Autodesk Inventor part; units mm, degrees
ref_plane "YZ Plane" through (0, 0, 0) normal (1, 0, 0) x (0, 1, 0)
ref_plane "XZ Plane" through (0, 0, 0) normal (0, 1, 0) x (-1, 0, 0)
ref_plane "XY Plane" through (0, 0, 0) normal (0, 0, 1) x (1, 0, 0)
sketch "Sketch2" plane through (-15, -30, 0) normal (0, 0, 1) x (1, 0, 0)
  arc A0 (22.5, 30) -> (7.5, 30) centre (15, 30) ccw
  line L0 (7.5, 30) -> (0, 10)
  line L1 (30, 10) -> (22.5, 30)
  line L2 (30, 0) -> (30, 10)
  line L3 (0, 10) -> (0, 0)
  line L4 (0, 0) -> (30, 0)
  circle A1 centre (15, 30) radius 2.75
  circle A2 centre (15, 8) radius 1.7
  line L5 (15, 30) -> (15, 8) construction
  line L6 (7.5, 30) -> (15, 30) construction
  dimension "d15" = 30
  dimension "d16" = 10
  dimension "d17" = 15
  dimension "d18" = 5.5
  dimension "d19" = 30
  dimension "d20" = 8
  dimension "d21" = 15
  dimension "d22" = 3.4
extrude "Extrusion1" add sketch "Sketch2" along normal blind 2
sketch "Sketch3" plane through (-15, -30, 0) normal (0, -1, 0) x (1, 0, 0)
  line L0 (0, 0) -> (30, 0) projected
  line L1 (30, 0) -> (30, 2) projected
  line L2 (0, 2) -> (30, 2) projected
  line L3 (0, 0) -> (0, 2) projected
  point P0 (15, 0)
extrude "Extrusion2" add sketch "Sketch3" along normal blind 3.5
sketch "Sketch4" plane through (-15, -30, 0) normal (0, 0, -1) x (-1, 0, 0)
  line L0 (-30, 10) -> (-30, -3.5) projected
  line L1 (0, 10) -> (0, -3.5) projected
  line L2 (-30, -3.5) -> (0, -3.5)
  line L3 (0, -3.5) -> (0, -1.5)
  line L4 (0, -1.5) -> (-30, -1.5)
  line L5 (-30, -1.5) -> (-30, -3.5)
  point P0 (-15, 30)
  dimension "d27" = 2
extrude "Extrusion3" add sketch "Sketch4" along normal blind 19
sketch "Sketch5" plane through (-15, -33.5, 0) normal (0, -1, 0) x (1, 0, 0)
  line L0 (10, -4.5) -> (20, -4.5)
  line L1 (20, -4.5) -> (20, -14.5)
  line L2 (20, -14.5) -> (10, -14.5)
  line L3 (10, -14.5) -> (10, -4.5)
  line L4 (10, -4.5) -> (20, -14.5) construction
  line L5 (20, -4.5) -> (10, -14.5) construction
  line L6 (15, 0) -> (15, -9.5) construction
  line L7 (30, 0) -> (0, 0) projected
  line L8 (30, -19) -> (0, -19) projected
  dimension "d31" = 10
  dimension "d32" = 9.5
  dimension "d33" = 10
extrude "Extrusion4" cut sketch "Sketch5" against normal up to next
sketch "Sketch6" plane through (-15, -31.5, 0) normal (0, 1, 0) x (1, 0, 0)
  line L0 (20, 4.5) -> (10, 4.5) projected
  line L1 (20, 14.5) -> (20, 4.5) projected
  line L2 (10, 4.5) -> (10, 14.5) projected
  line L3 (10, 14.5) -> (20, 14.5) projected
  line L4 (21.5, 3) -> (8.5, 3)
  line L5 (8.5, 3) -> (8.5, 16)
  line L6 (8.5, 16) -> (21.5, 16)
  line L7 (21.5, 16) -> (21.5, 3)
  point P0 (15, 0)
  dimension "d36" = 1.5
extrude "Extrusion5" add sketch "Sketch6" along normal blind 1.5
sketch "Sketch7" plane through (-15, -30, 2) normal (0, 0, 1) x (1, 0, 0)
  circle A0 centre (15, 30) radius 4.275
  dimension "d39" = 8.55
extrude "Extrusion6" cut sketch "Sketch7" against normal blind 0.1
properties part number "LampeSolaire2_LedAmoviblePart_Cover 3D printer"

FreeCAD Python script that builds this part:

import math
import FreeCAD as App
import Part
import Sketcher

doc = App.newDocument("Part")
body = doc.addObject("PartDesign::Body", "Body")

# Sketch on XY plane
sketch1 = body.newObject("Sketcher::SketchObject", "Sketch")
sketch1.AttachmentSupport = (doc.getObject("XY_Plane"), [""])
sketch1.MapMode = "FlatFace"
sketch1.addGeometry([
    Part.LineSegment(App.Vector(15, -20, 0), App.Vector(7.5, 0, 0)),  # 0
    Part.ArcOfCircle(Part.Circle(App.Vector(0, 0, 0), App.Vector(0, 0, 1), 7.5), math.radians(0), math.radians(180)),  # 1
    Part.LineSegment(App.Vector(-7.5, 0, 0), App.Vector(-15, -20, 0)),  # 2
    Part.LineSegment(App.Vector(-15, -20, 0), App.Vector(-15, -30, 0)),  # 3
    Part.LineSegment(App.Vector(-15, -30, 0), App.Vector(15, -30, 0)),  # 4
    Part.LineSegment(App.Vector(15, -30, 0), App.Vector(15, -20, 0)),  # 5
    Part.Circle(App.Vector(0, -22, 0), App.Vector(0, 0, 1), 1.7),  # 6
    Part.Circle(App.Vector(0, 0, 0), App.Vector(0, 0, 1), 2.8),  # 7
], False)
sketch1.addConstraint([
    Sketcher.Constraint("Coincident", 0, 2, 1, 1),
    Sketcher.Constraint("Coincident", 1, 2, 2, 1),
    Sketcher.Constraint("Coincident", 2, 2, 3, 1),
    Sketcher.Constraint("Coincident", 3, 2, 4, 1),
    Sketcher.Constraint("Coincident", 4, 2, 5, 1),
    Sketcher.Constraint("Coincident", 5, 2, 0, 1),
    Sketcher.Constraint("Vertical", 3),
    Sketcher.Constraint("Horizontal", 4),
    Sketcher.Constraint("Vertical", 5),
    Sketcher.Constraint("Coincident", 1, 3, -1, 1),
    Sketcher.Constraint("Coincident", 7, 3, -1, 1),
    Sketcher.Constraint("Symmetric", 2, 2, 5, 2, -2),
    Sketcher.Constraint("PointOnObject", 6, 3, -2),
    Sketcher.Constraint("PointOnObject", 0, 2, -1),
    Sketcher.Constraint("PointOnObject", 1, 2, -1),
    Sketcher.Constraint("Diameter", 6, 3.4),
    Sketcher.Constraint("Diameter", 7, 5.5),
    Sketcher.Constraint("Radius", 1, 7.5),
    Sketcher.Constraint("DistanceX", 4, 1, 4, 2, 30.0),
    Sketcher.Constraint("DistanceY", 3, 2, 3, 1, 10.0),
    Sketcher.Constraint("DistanceY", 3, 2, -1, 1, 30.0),
    Sketcher.Constraint("DistanceY", 3, 2, 6, 3, 8.0),
])
pad1 = body.newObject("PartDesign::Pad", "Pad")
pad1.Profile = sketch1
pad1.Length = 2

# Sketch on XZ plane
sketch2 = body.newObject("Sketcher::SketchObject", "Sketch001")
sketch2.AttachmentSupport = (doc.getObject("XZ_Plane"), [""])
sketch2.MapMode = "FlatFace"
sketch2.AttachmentOffset = App.Placement(App.Vector(0, 0, 30), App.Rotation())
sketch2.addGeometry([
    Part.LineSegment(App.Vector(-15, 2, 0), App.Vector(-15, 0, 0)),
    Part.LineSegment(App.Vector(-15, 0, 0), App.Vector(15, 0, 0)),
    Part.LineSegment(App.Vector(15, 0, 0), App.Vector(15, 2, 0)),
    Part.LineSegment(App.Vector(15, 2, 0), App.Vector(-15, 2, 0)),
], False)
sketch2.addConstraint([
    Sketcher.Constraint("Coincident", 0, 2, 1, 1),
    Sketcher.Constraint("Coincident", 1, 2, 2, 1),
    Sketcher.Constraint("Coincident", 2, 2, 3, 1),
    Sketcher.Constraint("Coincident", 3, 2, 0, 1),
    Sketcher.Constraint("Vertical", 0),
    Sketcher.Constraint("Horizontal", 1),
    Sketcher.Constraint("Vertical", 2),
    Sketcher.Constraint("Horizontal", 3),
    Sketcher.Constraint("Symmetric", 0, 2, 1, 2, -1, 1),
    Sketcher.Constraint("DistanceX", 1, 1, 1, 2, 30.0),
    Sketcher.Constraint("DistanceY", 0, 2, 0, 1, 2.0),
])
pad2 = body.newObject("PartDesign::Pad", "Pad001")
pad2.Profile = sketch2
pad2.Length = 3.5

# Sketch on XY plane
sketch3 = body.newObject("Sketcher::SketchObject", "Sketch002")
sketch3.AttachmentSupport = (doc.getObject("XY_Plane"), [""])
sketch3.MapMode = "FlatFace"
sketch3.addGeometry([
    Part.LineSegment(App.Vector(-15, -31.5, 0), App.Vector(15, -31.5, 0)),
    Part.LineSegment(App.Vector(15, -31.5, 0), App.Vector(15, -33.5, 0)),
    Part.LineSegment(App.Vector(15, -33.5, 0), App.Vector(-15, -33.5, 0)),
    Part.LineSegment(App.Vector(-15, -33.5, 0), App.Vector(-15, -31.5, 0)),
], False)
sketch3.addConstraint([
    Sketcher.Constraint("Coincident", 0, 2, 1, 1),
    Sketcher.Constraint("Coincident", 1, 2, 2, 1),
    Sketcher.Constraint("Coincident", 2, 2, 3, 1),
    Sketcher.Constraint("Coincident", 3, 2, 0, 1),
    Sketcher.Constraint("Horizontal", 0),
    Sketcher.Constraint("Vertical", 1),
    Sketcher.Constraint("Horizontal", 2),
    Sketcher.Constraint("Vertical", 3),
    Sketcher.Constraint("DistanceY", 1, 2, 1, 1, 2.0),
    Sketcher.Constraint("DistanceX", 0, 1, 0, 2, 30.0),
    Sketcher.Constraint("DistanceX", -1, 1, 0, 2, 15.0),
    Sketcher.Constraint("DistanceY", 0, 2, -1, 1, 31.5),
])
pad3 = body.newObject("PartDesign::Pad", "Pad002")
pad3.Profile = sketch3
pad3.Length = 19
pad3.Reversed = True

# Sketch on XZ plane
sketch4 = body.newObject("Sketcher::SketchObject", "Sketch003")
sketch4.AttachmentSupport = (doc.getObject("XZ_Plane"), [""])
sketch4.MapMode = "FlatFace"
sketch4.AttachmentOffset = App.Placement(App.Vector(0, 0, 33.5), App.Rotation())
sketch4.addGeometry([
    Part.LineSegment(App.Vector(5, -4, 0), App.Vector(-5, -4, 0)),
    Part.LineSegment(App.Vector(-5, -4, 0), App.Vector(-5, -14, 0)),
    Part.LineSegment(App.Vector(-5, -14, 0), App.Vector(5, -14, 0)),
    Part.LineSegment(App.Vector(5, -14, 0), App.Vector(5, -4, 0)),
], False)
sketch4.addConstraint([
    Sketcher.Constraint("Coincident", 0, 2, 1, 1),
    Sketcher.Constraint("Coincident", 1, 2, 2, 1),
    Sketcher.Constraint("Coincident", 2, 2, 3, 1),
    Sketcher.Constraint("Coincident", 3, 2, 0, 1),
    Sketcher.Constraint("Horizontal", 0),
    Sketcher.Constraint("Vertical", 1),
    Sketcher.Constraint("Horizontal", 2),
    Sketcher.Constraint("Vertical", 3),
    Sketcher.Constraint("Equal", 2, 1),
    Sketcher.Constraint("DistanceX", 0, 2, 0, 1, 10.0),
    Sketcher.Constraint("DistanceX", 0, 2, -1, 1, 5.0),
    Sketcher.Constraint("DistanceY", 0, 2, -1, 1, 4.5),
])
pocket1 = body.newObject("PartDesign::Pocket", "Pocket")
pocket1.Profile = sketch4
pocket1.Type = "UpToFirst"

# Sketch on XZ plane
sketch5 = body.newObject("Sketcher::SketchObject", "Sketch004")
sketch5.AttachmentSupport = (doc.getObject("XZ_Plane"), [""])
sketch5.MapMode = "FlatFace"
sketch5.AttachmentOffset = App.Placement(App.Vector(0, 0, 31.5), App.Rotation())
sketch5.addGeometry([
    Part.LineSegment(App.Vector(-6, -3, 0), App.Vector(6, -3, 0)),  # 0
    Part.LineSegment(App.Vector(6, -3, 0), App.Vector(6, -16, 0)),  # 1
    Part.LineSegment(App.Vector(6, -16, 0), App.Vector(-6, -16, 0)),  # 2
    Part.LineSegment(App.Vector(-6, -16, 0), App.Vector(-6, -3, 0)),  # 3
    Part.LineSegment(App.Vector(5, -14, 0), App.Vector(5, -4, 0)),  # 4
    Part.LineSegment(App.Vector(5, -4, 0), App.Vector(-5, -4, 0)),  # 5
    Part.LineSegment(App.Vector(-5, -4, 0), App.Vector(-5, -14, 0)),  # 6
    Part.LineSegment(App.Vector(-5, -14, 0), App.Vector(5, -14, 0)),  # 7
], False)
sketch5.addConstraint([
    Sketcher.Constraint("Coincident", 0, 2, 1, 1),
    Sketcher.Constraint("Coincident", 1, 2, 2, 1),
    Sketcher.Constraint("Coincident", 2, 2, 3, 1),
    Sketcher.Constraint("Coincident", 3, 2, 0, 1),
    Sketcher.Constraint("Coincident", 4, 2, 5, 1),
    Sketcher.Constraint("Coincident", 5, 2, 6, 1),
    Sketcher.Constraint("Coincident", 6, 2, 7, 1),
    Sketcher.Constraint("Coincident", 7, 2, 4, 1),
    Sketcher.Constraint("Horizontal", 0),
    Sketcher.Constraint("Vertical", 1),
    Sketcher.Constraint("Horizontal", 2),
    Sketcher.Constraint("Vertical", 3),
    Sketcher.Constraint("Vertical", 4),
    Sketcher.Constraint("Horizontal", 5),
    Sketcher.Constraint("Vertical", 6),
    Sketcher.Constraint("Horizontal", 7),
    Sketcher.Constraint("Equal", 2, 1),
    Sketcher.Constraint("Equal", 7, 4),
    Sketcher.Constraint("DistanceX", 4, 2, 0, 2, 1.5),
    Sketcher.Constraint("DistanceY", 4, 2, 0, 2, 1.5),
    Sketcher.Constraint("DistanceX", 3, 2, 5, 2, 1.5),
    Sketcher.Constraint("DistanceX", 0, 1, 0, 2, 13.0),
    Sketcher.Constraint("DistanceY", 0, 2, -1, 1, 3.0),
    Sketcher.Constraint("DistanceX", -1, 1, 4, 2, 5.0),
])
pad4 = body.newObject("PartDesign::Pad", "Pad003")
pad4.Profile = sketch5
pad4.Length = 1.5
pad4.Reversed = True

# Sketch on XY plane
sketch6 = body.newObject("Sketcher::SketchObject", "Sketch005")
sketch6.AttachmentSupport = (doc.getObject("XY_Plane"), [""])
sketch6.MapMode = "FlatFace"
sketch6.AttachmentOffset = App.Placement(App.Vector(0, 0, 2), App.Rotation())
sketch6.addGeometry(Part.Circle(App.Vector(0, 0, 0), App.Vector(0, 0, 1), 4.3), False)
sketch6.addConstraint([
    Sketcher.Constraint("Coincident", 0, 3, -1, 1),
    Sketcher.Constraint("Diameter", 0, 8.55),
])
pocket2 = body.newObject("PartDesign::Pocket", "Pocket001")
pocket2.Profile = sketch6
pocket2.Length = 0.1

doc.recompute()
